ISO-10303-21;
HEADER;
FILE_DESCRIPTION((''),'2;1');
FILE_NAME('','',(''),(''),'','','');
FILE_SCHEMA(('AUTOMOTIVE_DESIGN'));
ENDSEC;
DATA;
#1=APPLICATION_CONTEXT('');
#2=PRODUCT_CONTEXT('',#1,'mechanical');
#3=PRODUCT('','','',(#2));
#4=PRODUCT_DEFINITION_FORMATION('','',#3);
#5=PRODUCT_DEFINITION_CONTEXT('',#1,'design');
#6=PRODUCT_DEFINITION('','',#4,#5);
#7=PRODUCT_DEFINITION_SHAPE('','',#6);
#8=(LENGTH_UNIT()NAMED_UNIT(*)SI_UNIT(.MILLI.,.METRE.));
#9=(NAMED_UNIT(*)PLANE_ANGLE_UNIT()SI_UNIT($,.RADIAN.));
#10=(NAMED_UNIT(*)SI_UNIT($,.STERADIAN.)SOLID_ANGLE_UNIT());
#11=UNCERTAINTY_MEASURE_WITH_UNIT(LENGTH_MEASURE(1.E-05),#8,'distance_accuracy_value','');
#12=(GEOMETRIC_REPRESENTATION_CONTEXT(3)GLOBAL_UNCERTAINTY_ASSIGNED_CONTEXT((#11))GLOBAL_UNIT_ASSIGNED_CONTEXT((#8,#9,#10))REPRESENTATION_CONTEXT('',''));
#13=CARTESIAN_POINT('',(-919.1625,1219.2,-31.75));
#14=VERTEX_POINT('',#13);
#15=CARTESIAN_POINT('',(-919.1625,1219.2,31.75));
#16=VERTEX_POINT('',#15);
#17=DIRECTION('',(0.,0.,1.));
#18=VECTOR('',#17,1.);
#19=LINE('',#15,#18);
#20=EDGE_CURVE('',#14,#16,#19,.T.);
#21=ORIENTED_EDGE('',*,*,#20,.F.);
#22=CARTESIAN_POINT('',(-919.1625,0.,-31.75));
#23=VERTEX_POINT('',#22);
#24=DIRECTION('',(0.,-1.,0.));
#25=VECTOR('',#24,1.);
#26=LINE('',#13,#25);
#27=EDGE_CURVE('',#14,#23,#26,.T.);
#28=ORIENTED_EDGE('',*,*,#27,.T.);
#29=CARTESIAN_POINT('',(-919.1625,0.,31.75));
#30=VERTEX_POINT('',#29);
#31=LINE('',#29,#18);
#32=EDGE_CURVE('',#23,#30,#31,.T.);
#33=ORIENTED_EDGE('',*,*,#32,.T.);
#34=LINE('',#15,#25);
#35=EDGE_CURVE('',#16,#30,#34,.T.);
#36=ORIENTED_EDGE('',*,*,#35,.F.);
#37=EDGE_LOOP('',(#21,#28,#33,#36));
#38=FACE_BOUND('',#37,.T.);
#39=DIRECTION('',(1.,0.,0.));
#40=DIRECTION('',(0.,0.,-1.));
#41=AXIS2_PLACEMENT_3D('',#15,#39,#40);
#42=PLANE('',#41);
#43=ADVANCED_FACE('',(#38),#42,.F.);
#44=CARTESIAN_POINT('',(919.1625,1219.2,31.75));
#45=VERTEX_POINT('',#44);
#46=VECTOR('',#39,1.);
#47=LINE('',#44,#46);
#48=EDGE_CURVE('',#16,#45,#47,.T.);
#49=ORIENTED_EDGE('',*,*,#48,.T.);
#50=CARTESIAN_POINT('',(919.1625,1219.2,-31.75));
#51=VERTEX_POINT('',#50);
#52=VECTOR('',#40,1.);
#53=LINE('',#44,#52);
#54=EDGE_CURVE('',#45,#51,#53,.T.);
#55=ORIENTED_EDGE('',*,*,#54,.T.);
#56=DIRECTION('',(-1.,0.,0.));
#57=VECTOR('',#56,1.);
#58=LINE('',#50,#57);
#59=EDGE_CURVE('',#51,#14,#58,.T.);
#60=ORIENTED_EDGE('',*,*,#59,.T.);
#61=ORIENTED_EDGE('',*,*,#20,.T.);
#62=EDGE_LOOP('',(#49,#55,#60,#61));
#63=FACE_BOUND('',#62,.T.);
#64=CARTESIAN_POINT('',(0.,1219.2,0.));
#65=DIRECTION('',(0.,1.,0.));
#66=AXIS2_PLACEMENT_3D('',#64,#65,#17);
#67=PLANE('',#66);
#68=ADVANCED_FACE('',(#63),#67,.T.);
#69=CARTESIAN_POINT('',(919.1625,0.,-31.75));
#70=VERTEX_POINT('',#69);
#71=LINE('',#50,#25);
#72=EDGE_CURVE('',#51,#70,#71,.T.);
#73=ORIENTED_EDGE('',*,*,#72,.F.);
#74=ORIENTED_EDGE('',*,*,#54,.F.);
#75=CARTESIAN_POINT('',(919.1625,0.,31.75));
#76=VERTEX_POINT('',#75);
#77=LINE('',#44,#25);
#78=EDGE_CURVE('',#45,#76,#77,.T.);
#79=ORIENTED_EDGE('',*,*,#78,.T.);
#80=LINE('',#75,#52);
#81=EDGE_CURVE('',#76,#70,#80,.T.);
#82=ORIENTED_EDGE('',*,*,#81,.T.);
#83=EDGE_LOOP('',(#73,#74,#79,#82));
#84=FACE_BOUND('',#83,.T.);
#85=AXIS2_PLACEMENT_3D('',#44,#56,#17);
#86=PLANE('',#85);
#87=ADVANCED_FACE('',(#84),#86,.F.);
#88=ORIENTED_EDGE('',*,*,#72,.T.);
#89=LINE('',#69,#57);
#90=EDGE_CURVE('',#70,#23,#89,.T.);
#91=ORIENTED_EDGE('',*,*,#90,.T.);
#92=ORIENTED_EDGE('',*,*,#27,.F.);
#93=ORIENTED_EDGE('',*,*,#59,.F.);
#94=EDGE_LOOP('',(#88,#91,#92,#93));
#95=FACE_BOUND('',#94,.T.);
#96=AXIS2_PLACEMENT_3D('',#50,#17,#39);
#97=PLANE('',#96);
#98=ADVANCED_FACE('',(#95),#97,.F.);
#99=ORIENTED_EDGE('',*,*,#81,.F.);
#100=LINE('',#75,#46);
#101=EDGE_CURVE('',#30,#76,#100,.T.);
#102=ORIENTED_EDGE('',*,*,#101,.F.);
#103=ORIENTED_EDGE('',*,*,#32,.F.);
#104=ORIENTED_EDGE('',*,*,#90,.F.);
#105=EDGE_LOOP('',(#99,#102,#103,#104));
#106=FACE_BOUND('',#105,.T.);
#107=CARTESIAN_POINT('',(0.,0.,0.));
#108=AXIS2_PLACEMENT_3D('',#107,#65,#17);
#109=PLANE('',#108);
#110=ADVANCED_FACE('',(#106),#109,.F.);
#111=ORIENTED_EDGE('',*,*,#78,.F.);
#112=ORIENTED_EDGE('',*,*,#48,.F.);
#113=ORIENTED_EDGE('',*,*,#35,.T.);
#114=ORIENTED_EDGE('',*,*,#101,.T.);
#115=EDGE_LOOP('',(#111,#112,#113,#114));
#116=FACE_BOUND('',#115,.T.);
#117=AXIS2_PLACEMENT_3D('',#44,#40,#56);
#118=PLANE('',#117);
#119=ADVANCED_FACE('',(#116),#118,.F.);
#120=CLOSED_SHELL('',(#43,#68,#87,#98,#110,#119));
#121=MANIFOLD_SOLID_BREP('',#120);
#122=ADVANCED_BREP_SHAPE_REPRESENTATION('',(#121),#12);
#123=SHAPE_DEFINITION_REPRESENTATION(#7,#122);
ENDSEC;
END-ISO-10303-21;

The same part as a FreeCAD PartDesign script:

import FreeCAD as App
import Part
import Sketcher
from FreeCAD import Vector
Q = App.Units.Quantity

doc = App.newDocument("Part")
body = doc.addObject("PartDesign::Body", "Body")

sketch1 = body.newObject("Sketcher::SketchObject", "Sketch")
sketch1.AttachmentSupport = (doc.getObject("XZ_Plane"), [""])
sketch1.MapMode = "FlatFace"
sketch1.addGeometry(Part.LineSegment(Vector(-919, -32, 0), Vector(-919, 32, 0)), False)
sketch1.addGeometry(Part.LineSegment(Vector(-919, 32, 0), Vector(919, 32, 0)), False)
sketch1.addGeometry(Part.LineSegment(Vector(919, 32, 0), Vector(919, -32, 0)), False)
sketch1.addGeometry(Part.LineSegment(Vector(919, -32, 0), Vector(-919, -32, 0)), False)
sketch1.addConstraint(Sketcher.Constraint("Coincident", 0, 2, 1, 1))
sketch1.addConstraint(Sketcher.Constraint("Coincident", 1, 2, 2, 1))
sketch1.addConstraint(Sketcher.Constraint("Coincident", 2, 2, 3, 1))
sketch1.addConstraint(Sketcher.Constraint("Coincident", 3, 2, 0, 1))
sketch1.addConstraint(Sketcher.Constraint("Vertical", 0))
sketch1.addConstraint(Sketcher.Constraint("Horizontal", 1))
sketch1.addConstraint(Sketcher.Constraint("Vertical", 2))
sketch1.addConstraint(Sketcher.Constraint("Horizontal", 3))
sketch1.addConstraint(Sketcher.Constraint("Symmetric", 0, 2, 2, 2, -1, 1))
sketch1.addConstraint(Sketcher.Constraint("DistanceY", 0, 1, 0, 2, Q("2.5 in")))
sketch1.addConstraint(Sketcher.Constraint("DistanceX", 1, 1, 1, 2, Q("72.375 in")))
pad1 = body.newObject("PartDesign::Pad", "Pad")
pad1.Profile = sketch1
pad1.Length = Q("48 in")
pad1.Reversed = True

doc.recompute()
